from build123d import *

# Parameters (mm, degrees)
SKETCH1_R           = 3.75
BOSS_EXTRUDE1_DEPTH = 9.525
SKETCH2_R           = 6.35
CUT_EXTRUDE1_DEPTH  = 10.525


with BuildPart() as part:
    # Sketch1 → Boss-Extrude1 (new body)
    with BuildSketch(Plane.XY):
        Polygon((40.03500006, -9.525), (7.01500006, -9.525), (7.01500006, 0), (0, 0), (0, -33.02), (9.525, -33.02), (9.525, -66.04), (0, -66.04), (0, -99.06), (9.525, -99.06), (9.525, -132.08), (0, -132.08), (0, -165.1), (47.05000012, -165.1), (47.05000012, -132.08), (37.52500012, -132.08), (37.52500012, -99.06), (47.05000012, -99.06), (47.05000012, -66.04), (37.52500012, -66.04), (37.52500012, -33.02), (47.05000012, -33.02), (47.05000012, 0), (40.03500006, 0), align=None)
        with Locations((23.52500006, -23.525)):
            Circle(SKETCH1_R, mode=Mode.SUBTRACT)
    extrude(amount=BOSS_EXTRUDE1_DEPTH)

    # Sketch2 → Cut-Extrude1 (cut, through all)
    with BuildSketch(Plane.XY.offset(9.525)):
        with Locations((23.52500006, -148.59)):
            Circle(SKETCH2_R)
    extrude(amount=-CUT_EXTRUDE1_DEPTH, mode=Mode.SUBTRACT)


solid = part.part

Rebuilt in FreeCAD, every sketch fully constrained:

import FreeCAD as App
import Part
import Sketcher
Q = App.Units.Quantity


def add_polygon(sketch, points):
    """Adds a closed chain of lines whose ends are joined by coincident constraints."""
    first, n = sketch.GeometryCount, len(points)
    for a, b in zip(points, points[1:] + points[:1]):
        sketch.addGeometry(Part.LineSegment(App.Vector(*a, 0), App.Vector(*b, 0)), False)
    for i in range(n):
        sketch.addConstraint(Sketcher.Constraint("Coincident", first + i, 2, first + (i + 1) % n, 1))

doc = App.newDocument("Part")
body = doc.addObject("PartDesign::Body", "Body")

# Sketch on XY plane
sketch1 = body.newObject("Sketcher::SketchObject", "Sketch")
sketch1.AttachmentSupport = (doc.getObject("XY_Plane"), [""])
sketch1.MapMode = "FlatFace"
add_polygon(sketch1, [(40.035, -9.525), (7.015, -9.525), (7.015, 0), (0, 0), (0, -33.02), (9.525, -33.02), (9.525, -66.04), (0, -66.04), (0, -99.06), (9.525, -99.06), (9.525, -132.08), (0, -132.08), (0, -165.1), (47.05, -165.1), (47.05, -132.08), (37.525, -132.08), (37.525, -99.06), (47.05, -99.06), (47.05, -66.04), (37.525, -66.04), (37.525, -33.02), (47.05, -33.02), (47.05, 0), (40.035, 0)])  # lines 0-23
sketch1.addGeometry(Part.Circle(App.Vector(23.525, -23.525, 0), App.Vector(0, 0, 1), 3.75), False)  # 24
sketch1.addConstraint(Sketcher.Constraint("Horizontal", 0))
sketch1.addConstraint(Sketcher.Constraint("Vertical", 1))
sketch1.addConstraint(Sketcher.Constraint("Horizontal", 2))
sketch1.addConstraint(Sketcher.Constraint("Vertical", 3))
sketch1.addConstraint(Sketcher.Constraint("Horizontal", 4))
sketch1.addConstraint(Sketcher.Constraint("Vertical", 5))
sketch1.addConstraint(Sketcher.Constraint("Horizontal", 6))
sketch1.addConstraint(Sketcher.Constraint("Vertical", 7))
sketch1.addConstraint(Sketcher.Constraint("Horizontal", 8))
sketch1.addConstraint(Sketcher.Constraint("Vertical", 9))
sketch1.addConstraint(Sketcher.Constraint("Horizontal", 10))
sketch1.addConstraint(Sketcher.Constraint("Vertical", 11))
sketch1.addConstraint(Sketcher.Constraint("Horizontal", 12))
sketch1.addConstraint(Sketcher.Constraint("Vertical", 13))
sketch1.addConstraint(Sketcher.Constraint("Horizontal", 14))
sketch1.addConstraint(Sketcher.Constraint("Vertical", 15))
sketch1.addConstraint(Sketcher.Constraint("Horizontal", 16))
sketch1.addConstraint(Sketcher.Constraint("Vertical", 17))
sketch1.addConstraint(Sketcher.Constraint("Horizontal", 18))
sketch1.addConstraint(Sketcher.Constraint("Vertical", 19))
sketch1.addConstraint(Sketcher.Constraint("Horizontal", 20))
sketch1.addConstraint(Sketcher.Constraint("Vertical", 21))
sketch1.addConstraint(Sketcher.Constraint("Horizontal", 22))
sketch1.addConstraint(Sketcher.Constraint("Vertical", 23))
sketch1.addConstraint(Sketcher.Constraint("Coincident", 2, 2, -1, 1))
sketch1.addConstraint(Sketcher.Constraint("PointOnObject", 6, 2, -2))
sketch1.addConstraint(Sketcher.Constraint("PointOnObject", 10, 2, -2))
sketch1.addConstraint(Sketcher.Constraint("PointOnObject", 21, 2, -1))
sketch1.addConstraint(Sketcher.Constraint("Horizontal", 10, 2, 13, 2))
sketch1.addConstraint(Sketcher.Constraint("Horizontal", 8, 2, 15, 2))
sketch1.addConstraint(Sketcher.Constraint("Horizontal", 6, 2, 17, 2))
sketch1.addConstraint(Sketcher.Constraint("Horizontal", 4, 2, 19, 2))
sketch1.addConstraint(Sketcher.Constraint("Vertical", 5, 2, 8, 2))
sketch1.addConstraint(Sketcher.Constraint("Vertical", 13, 2, 16, 2))
sketch1.addConstraint(Sketcher.Constraint("Vertical", 15, 2, 18, 2))
sketch1.addConstraint(Sketcher.Constraint("Vertical", 17, 2, 20, 2))
sketch1.addConstraint(Sketcher.Constraint("Equal", 10, 14))
sketch1.addConstraint(Sketcher.Constraint("Equal", 2, 22))
sketch1.addConstraint(Sketcher.Constraint("Equal", 20, 1))
sketch1.addConstraint(Sketcher.Constraint("Equal", 0, 3))
sketch1.addConstraint(Sketcher.Constraint("Equal", 3, 5))
sketch1.addConstraint(Sketcher.Constraint("Equal", 5, 7))
sketch1.addConstraint(Sketcher.Constraint("Equal", 7, 9))
sketch1.addConstraint(Sketcher.Constraint("Equal", 9, 11))
sketch1.addConstraint(Sketcher.Constraint("DistanceX", 0, 2, 0, 1, Q("1.3 in")))
sketch1.addConstraint(Sketcher.Constraint("Diameter", 24, 7.5))
sketch1.addConstraint(Sketcher.Constraint("DistanceX", 4, 1, 4, 2, Q("0.375 in")))
sketch1.addConstraint(Sketcher.Constraint("DistanceX", 0, 2, 24, 3, Q("0.65 in")))
sketch1.addConstraint(Sketcher.Constraint("DistanceX", 2, 2, 2, 1, 7.015))
sketch1.addConstraint(Sketcher.Constraint("DistanceY", 24, 3, -1, 1, 23.525))
pad1 = body.newObject("PartDesign::Pad", "Pad")
pad1.Profile = sketch1
pad1.Length = Q("0.375 in")

# Sketch on XY plane
sketch2 = body.newObject("Sketcher::SketchObject", "Sketch001")
sketch2.AttachmentSupport = (doc.getObject("XY_Plane"), [""])
sketch2.MapMode = "FlatFace"
sketch2.AttachmentOffset = App.Placement(App.Vector(0, 0, 0.375 * 25.4), App.Rotation())
sketch2.addGeometry(Part.Circle(App.Vector(23.525, -148.59, 0), App.Vector(0, 0, 1), 6.35), False)
sketch2.addConstraint(Sketcher.Constraint("Diameter", 0, Q("0.5 in")))
sketch2.addConstraint(Sketcher.Constraint("DistanceY", 0, 3, -1, 1, Q("5.85 in")))
sketch2.addConstraint(Sketcher.Constraint("DistanceX", -1, 1, 0, 3, 23.525))
pocket1 = body.newObject("PartDesign::Pocket", "Pocket")
pocket1.Profile = sketch2
pocket1.Type = "ThroughAll"

doc.recompute()
